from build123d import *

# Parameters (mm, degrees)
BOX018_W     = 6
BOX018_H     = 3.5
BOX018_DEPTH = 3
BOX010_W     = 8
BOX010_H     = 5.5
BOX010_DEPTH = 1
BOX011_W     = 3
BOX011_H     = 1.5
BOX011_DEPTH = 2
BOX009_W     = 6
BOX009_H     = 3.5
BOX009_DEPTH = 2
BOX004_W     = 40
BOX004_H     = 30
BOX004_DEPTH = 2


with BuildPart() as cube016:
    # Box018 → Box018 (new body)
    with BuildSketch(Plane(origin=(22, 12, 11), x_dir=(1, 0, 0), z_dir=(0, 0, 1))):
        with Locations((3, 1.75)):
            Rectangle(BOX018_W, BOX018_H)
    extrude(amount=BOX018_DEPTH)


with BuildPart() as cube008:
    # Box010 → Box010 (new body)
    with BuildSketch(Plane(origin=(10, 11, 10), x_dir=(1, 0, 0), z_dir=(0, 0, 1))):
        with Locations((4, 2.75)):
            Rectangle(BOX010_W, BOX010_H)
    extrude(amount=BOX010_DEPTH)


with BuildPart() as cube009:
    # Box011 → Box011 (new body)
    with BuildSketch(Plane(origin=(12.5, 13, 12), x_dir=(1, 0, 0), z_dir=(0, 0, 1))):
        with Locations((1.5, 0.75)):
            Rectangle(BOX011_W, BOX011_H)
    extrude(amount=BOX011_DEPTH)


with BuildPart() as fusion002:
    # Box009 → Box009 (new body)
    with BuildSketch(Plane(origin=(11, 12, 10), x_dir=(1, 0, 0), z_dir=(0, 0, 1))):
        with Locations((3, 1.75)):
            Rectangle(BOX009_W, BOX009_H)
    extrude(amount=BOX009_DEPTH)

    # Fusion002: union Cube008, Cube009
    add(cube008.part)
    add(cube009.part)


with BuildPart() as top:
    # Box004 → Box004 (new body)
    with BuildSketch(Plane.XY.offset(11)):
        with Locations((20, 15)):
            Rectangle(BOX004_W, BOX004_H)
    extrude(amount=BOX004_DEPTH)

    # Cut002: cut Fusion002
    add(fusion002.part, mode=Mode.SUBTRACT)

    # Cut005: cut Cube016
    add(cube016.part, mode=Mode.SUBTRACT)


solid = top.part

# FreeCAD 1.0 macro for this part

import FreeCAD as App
import Part
import Sketcher
from FreeCAD import Vector
Q = App.Units.Quantity


def add_polygon(sketch, points):
    """Adds a closed chain of lines whose ends are joined by coincident constraints."""
    first, n = sketch.GeometryCount, len(points)
    for a, b in zip(points, points[1:] + points[:1]):
        sketch.addGeometry(Part.LineSegment(App.Vector(*a, 0), App.Vector(*b, 0)), False)
    for i in range(n):
        sketch.addConstraint(Sketcher.Constraint("Coincident", first + i, 2, first + (i + 1) % n, 1))

doc = App.newDocument("Part")
body = doc.addObject("PartDesign::Body", "Body")

# Sketch on XY plane
sketch1 = body.newObject("Sketcher::SketchObject", "Sketch")
sketch1.AttachmentSupport = (doc.getObject("XY_Plane"), [""])
sketch1.MapMode = "FlatFace"
sketch1.AttachmentOffset = App.Placement(Vector(0, 0, 11), App.Rotation())
add_polygon(sketch1, [(22, 15.5), (22, 12), (28, 12), (28, 15.5)])  # lines 0-3
sketch1.addConstraint(Sketcher.Constraint("Vertical", 0))
sketch1.addConstraint(Sketcher.Constraint("Horizontal", 1))
sketch1.addConstraint(Sketcher.Constraint("Vertical", 2))
sketch1.addConstraint(Sketcher.Constraint("Horizontal", 3))
sketch1.addConstraint(Sketcher.Constraint("DistanceX", 1, 1, 1, 2, Q("6 mm")))
sketch1.addConstraint(Sketcher.Constraint("DistanceY", 0, 2, 0, 1, Q("3.5 mm")))
sketch1.addConstraint(Sketcher.Constraint("DistanceX", -1, 1, 0, 2, Q("22 mm")))
sketch1.addConstraint(Sketcher.Constraint("DistanceY", -1, 1, 0, 2, Q("12 mm")))
pad1 = body.newObject("PartDesign::Pad", "Pad")
pad1.Profile = sketch1
pad1.Length = 3
body2 = doc.addObject("PartDesign::Body", "Body001")

# Sketch on XY plane
sketch2 = body2.newObject("Sketcher::SketchObject", "Sketch001")
sketch2.AttachmentSupport = (doc.getObject("XY_Plane001"), [""])
sketch2.MapMode = "FlatFace"
sketch2.AttachmentOffset = App.Placement(Vector(0, 0, 10), App.Rotation())
add_polygon(sketch2, [(10, 16), (10, 11), (18, 11), (18, 16)])  # lines 0-3
sketch2.addConstraint(Sketcher.Constraint("Vertical", 0))
sketch2.addConstraint(Sketcher.Constraint("Horizontal", 1))
sketch2.addConstraint(Sketcher.Constraint("Vertical", 2))
sketch2.addConstraint(Sketcher.Constraint("Horizontal", 3))
sketch2.addConstraint(Sketcher.Constraint("DistanceX", 1, 1, 1, 2, Q("8 mm")))
sketch2.addConstraint(Sketcher.Constraint("DistanceY", 0, 2, 0, 1, Q("5.5 mm")))
sketch2.addConstraint(Sketcher.Constraint("DistanceX", -1, 1, 0, 2, Q("10 mm")))
sketch2.addConstraint(Sketcher.Constraint("DistanceY", -1, 1, 0, 2, Q("11 mm")))
pad2 = body2.newObject("PartDesign::Pad", "Pad001")
pad2.Profile = sketch2
pad2.Length = 1
body3 = doc.addObject("PartDesign::Body", "Body002")

# Sketch on XY plane
sketch3 = body3.newObject("Sketcher::SketchObject", "Sketch002")
sketch3.AttachmentSupport = (doc.getObject("XY_Plane002"), [""])
sketch3.MapMode = "FlatFace"
sketch3.AttachmentOffset = App.Placement(Vector(0, 0, 12), App.Rotation())
add_polygon(sketch3, [(12.5, 14.5), (12.5, 13), (15.5, 13), (15.5, 14.5)])  # lines 0-3
sketch3.addConstraint(Sketcher.Constraint("Vertical", 0))
sketch3.addConstraint(Sketcher.Constraint("Horizontal", 1))
sketch3.addConstraint(Sketcher.Constraint("Vertical", 2))
sketch3.addConstraint(Sketcher.Constraint("Horizontal", 3))
sketch3.addConstraint(Sketcher.Constraint("DistanceX", 1, 1, 1, 2, Q("3 mm")))
sketch3.addConstraint(Sketcher.Constraint("DistanceY", 0, 2, 0, 1, Q("1.5 mm")))
sketch3.addConstraint(Sketcher.Constraint("DistanceY", -1, 1, 0, 2, Q("13 mm")))
sketch3.addConstraint(Sketcher.Constraint("DistanceX", -1, 1, 0, 2, Q("12.5 mm")))
pad3 = body3.newObject("PartDesign::Pad", "Pad002")
pad3.Profile = sketch3
pad3.Length = 2
body4 = doc.addObject("PartDesign::Body", "Body003")

# Sketch on XY plane
sketch4 = body4.newObject("Sketcher::SketchObject", "Sketch003")
sketch4.AttachmentSupport = (doc.getObject("XY_Plane003"), [""])
sketch4.MapMode = "FlatFace"
sketch4.AttachmentOffset = App.Placement(Vector(0, 0, 10), App.Rotation())
add_polygon(sketch4, [(11, 15.5), (11, 12), (17, 12), (17, 15.5)])  # lines 0-3
sketch4.addConstraint(Sketcher.Constraint("Vertical", 0))
sketch4.addConstraint(Sketcher.Constraint("Horizontal", 1))
sketch4.addConstraint(Sketcher.Constraint("Vertical", 2))
sketch4.addConstraint(Sketcher.Constraint("Horizontal", 3))
sketch4.addConstraint(Sketcher.Constraint("DistanceX", 1, 1, 1, 2, Q("6 mm")))
sketch4.addConstraint(Sketcher.Constraint("DistanceY", 0, 2, 0, 1, Q("3.5 mm")))
sketch4.addConstraint(Sketcher.Constraint("DistanceX", -1, 1, 0, 2, Q("11 mm")))
sketch4.addConstraint(Sketcher.Constraint("DistanceY", -1, 1, 0, 2, Q("12 mm")))
pad4 = body4.newObject("PartDesign::Pad", "Pad003")
pad4.Profile = sketch4
pad4.Length = 2
doc.recompute()

boolean = body4.newObject("PartDesign::Boolean", "Boolean")
boolean.Type = "Fuse"
boolean.addObjects([body2])
doc.recompute()

boolean2 = body4.newObject("PartDesign::Boolean", "Boolean001")
boolean2.Type = "Fuse"
boolean2.addObjects([body3])
body5 = doc.addObject("PartDesign::Body", "Body004")

# Sketch on XY plane
sketch5 = body5.newObject("Sketcher::SketchObject", "Sketch004")
sketch5.AttachmentSupport = (doc.getObject("XY_Plane004"), [""])
sketch5.MapMode = "FlatFace"
sketch5.AttachmentOffset = App.Placement(Vector(0, 0, 11), App.Rotation())
add_polygon(sketch5, [(0, 30), (0, 0), (40, 0), (40, 30)])  # lines 0-3
sketch5.addConstraint(Sketcher.Constraint("Vertical", 0))
sketch5.addConstraint(Sketcher.Constraint("Horizontal", 1))
sketch5.addConstraint(Sketcher.Constraint("Vertical", 2))
sketch5.addConstraint(Sketcher.Constraint("Horizontal", 3))
sketch5.addConstraint(Sketcher.Constraint("Coincident", 0, 2, -1, 1))
sketch5.addConstraint(Sketcher.Constraint("DistanceX", 1, 1, 1, 2, Q("40 mm")))
sketch5.addConstraint(Sketcher.Constraint("DistanceY", 0, 2, 0, 1, Q("30 mm")))
pad5 = body5.newObject("PartDesign::Pad", "Pad004")
pad5.Profile = sketch5
pad5.Length = 2
doc.recompute()

boolean3 = body5.newObject("PartDesign::Boolean", "Boolean002")
boolean3.Type = "Cut"
boolean3.addObjects([body4])
doc.recompute()

boolean4 = body5.newObject("PartDesign::Boolean", "Boolean003")
boolean4.Type = "Cut"
boolean4.addObjects([body])

doc.recompute()
